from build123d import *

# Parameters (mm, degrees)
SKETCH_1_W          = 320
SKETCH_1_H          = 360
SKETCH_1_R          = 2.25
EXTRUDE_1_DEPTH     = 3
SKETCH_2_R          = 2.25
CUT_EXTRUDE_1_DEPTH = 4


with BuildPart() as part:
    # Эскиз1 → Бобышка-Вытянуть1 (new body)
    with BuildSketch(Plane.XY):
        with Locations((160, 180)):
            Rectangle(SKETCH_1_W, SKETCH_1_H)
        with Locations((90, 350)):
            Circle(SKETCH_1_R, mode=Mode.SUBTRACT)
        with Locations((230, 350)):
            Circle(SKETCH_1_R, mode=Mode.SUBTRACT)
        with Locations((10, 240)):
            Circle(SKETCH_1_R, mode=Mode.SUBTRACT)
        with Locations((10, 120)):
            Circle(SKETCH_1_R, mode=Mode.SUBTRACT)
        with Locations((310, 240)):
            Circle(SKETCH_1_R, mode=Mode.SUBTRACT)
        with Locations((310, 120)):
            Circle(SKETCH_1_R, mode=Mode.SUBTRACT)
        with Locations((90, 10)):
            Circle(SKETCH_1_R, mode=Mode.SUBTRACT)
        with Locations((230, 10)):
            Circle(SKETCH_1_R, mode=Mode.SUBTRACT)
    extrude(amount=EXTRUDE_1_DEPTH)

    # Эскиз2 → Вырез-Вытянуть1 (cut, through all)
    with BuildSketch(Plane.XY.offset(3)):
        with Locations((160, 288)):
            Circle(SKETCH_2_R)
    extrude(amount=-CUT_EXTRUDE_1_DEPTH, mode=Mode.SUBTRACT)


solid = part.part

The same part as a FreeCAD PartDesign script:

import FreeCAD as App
import Part
import Sketcher


def add_polygon(sketch, points):
    """Adds a closed chain of lines whose ends are joined by coincident constraints."""
    first, n = sketch.GeometryCount, len(points)
    for a, b in zip(points, points[1:] + points[:1]):
        sketch.addGeometry(Part.LineSegment(App.Vector(*a, 0), App.Vector(*b, 0)), False)
    for i in range(n):
        sketch.addConstraint(Sketcher.Constraint("Coincident", first + i, 2, first + (i + 1) % n, 1))

doc = App.newDocument("Part")
params = doc.addObject("Spreadsheet::Sheet", "Params")
for row, (alias, value) in enumerate([
    ("sketch1_diameter", "4.5 mm"),
    ("sketch1_width", "320 mm"),
    ("sketch1_height", "360 mm"),
    ("pad1_length", "3 mm"),
    ("sketch2_diameter", "4.5 mm"),
], start=1):
    params.set(f"A{row}", alias)
    params.set(f"B{row}", "=" + value)
    params.setAlias(f"B{row}", alias)

body = doc.addObject("PartDesign::Body", "Body")

# Sketch on XY plane
sketch1 = body.newObject("Sketcher::SketchObject", "Sketch")
sketch1.AttachmentSupport = (doc.getObject("XY_Plane"), [""])
sketch1.MapMode = "FlatFace"
add_polygon(sketch1, [(0, 360), (0, 0), (320, 0), (320, 360)])  # lines 0-3
sketch1.addGeometry(Part.Circle(App.Vector(90, 10, 0), App.Vector(0, 0, 1), 2.2), False)  # 4
sketch1.addGeometry(Part.Circle(App.Vector(10, 120, 0), App.Vector(0, 0, 1), 2.2), False)  # 5
sketch1.addGeometry(Part.Circle(App.Vector(230, 10, 0), App.Vector(0, 0, 1), 2.2), False)  # 6
sketch1.addGeometry(Part.Circle(App.Vector(310, 120, 0), App.Vector(0, 0, 1), 2.2), False)  # 7
sketch1.addGeometry(Part.Circle(App.Vector(10, 240, 0), App.Vector(0, 0, 1), 2.2), False)  # 8
sketch1.addGeometry(Part.Circle(App.Vector(90, 350, 0), App.Vector(0, 0, 1), 2.2), False)  # 9
sketch1.addGeometry(Part.Circle(App.Vector(310, 240, 0), App.Vector(0, 0, 1), 2.2), False)  # 10
sketch1.addGeometry(Part.Circle(App.Vector(230, 350, 0), App.Vector(0, 0, 1), 2.2), False)  # 11
sketch1.addConstraint([
    Sketcher.Constraint("Vertical", 0),
    Sketcher.Constraint("Horizontal", 1),
    Sketcher.Constraint("Vertical", 2),
    Sketcher.Constraint("Horizontal", 3),
    Sketcher.Constraint("Coincident", 0, 2, -1, 1),
    Sketcher.Constraint("Equal", 4, 5),
    Sketcher.Constraint("Equal", 5, 6),
    Sketcher.Constraint("Equal", 6, 7),
    Sketcher.Constraint("Equal", 7, 8),
    Sketcher.Constraint("Equal", 8, 9),
    Sketcher.Constraint("Equal", 9, 10),
    Sketcher.Constraint("Equal", 10, 11),
    Sketcher.Constraint("Horizontal", 4, 3, 6, 3),
    Sketcher.Constraint("Horizontal", 5, 3, 7, 3),
    Sketcher.Constraint("Horizontal", 8, 3, 10, 3),
    Sketcher.Constraint("Horizontal", 9, 3, 11, 3),
    Sketcher.Constraint("Vertical", 5, 3, 8, 3),
    Sketcher.Constraint("Vertical", 4, 3, 9, 3),
    Sketcher.Constraint("Vertical", 7, 3, 10, 3),
    Sketcher.Constraint("Vertical", 6, 3, 11, 3),
    Sketcher.Constraint("Diameter", 4, 4.5),
    Sketcher.Constraint("DistanceX", 1, 1, 1, 2, 320.0),
    Sketcher.Constraint("DistanceY", 0, 2, 0, 1, 360.0),
    Sketcher.Constraint("DistanceX", -1, 1, 4, 3, 90.0),
    Sketcher.Constraint("DistanceY", -1, 1, 4, 3, 10.0),
    Sketcher.Constraint("DistanceX", -1, 1, 5, 3, 10.0),
    Sketcher.Constraint("DistanceY", -1, 1, 5, 3, 120.0),
    Sketcher.Constraint("DistanceX", -1, 1, 6, 3, 230.0),
    Sketcher.Constraint("DistanceX", -1, 1, 7, 3, 310.0),
    Sketcher.Constraint("DistanceY", -1, 1, 8, 3, 240.0),
    Sketcher.Constraint("DistanceY", -1, 1, 9, 3, 350.0),
])
sketch1.setExpression("Constraints[24]", "Params.sketch1_diameter")
sketch1.setExpression("Constraints[25]", "Params.sketch1_width")
sketch1.setExpression("Constraints[26]", "Params.sketch1_height")
pad1 = body.newObject("PartDesign::Pad", "Pad")
pad1.Profile = sketch1
pad1.setExpression("Length", "Params.pad1_length")

# Sketch on XY plane
sketch2 = body.newObject("Sketcher::SketchObject", "Sketch001")
sketch2.AttachmentSupport = (doc.getObject("XY_Plane"), [""])
sketch2.MapMode = "FlatFace"
sketch2.AttachmentOffset = App.Placement(App.Vector(0, 0, 3), App.Rotation())
sketch2.addGeometry(Part.Circle(App.Vector(160, 288, 0), App.Vector(0, 0, 1), 2.2), False)
sketch2.addConstraint([
    Sketcher.Constraint("Diameter", 0, 4.5),
    Sketcher.Constraint("DistanceX", -1, 1, 0, 3, 160.0),
    Sketcher.Constraint("DistanceY", -1, 1, 0, 3, 288.0),
])
sketch2.setExpression("Constraints[0]", "Params.sketch2_diameter")
pocket1 = body.newObject("PartDesign::Pocket", "Pocket")
pocket1.Profile = sketch2
pocket1.Type = "ThroughAll"

doc.recompute()
